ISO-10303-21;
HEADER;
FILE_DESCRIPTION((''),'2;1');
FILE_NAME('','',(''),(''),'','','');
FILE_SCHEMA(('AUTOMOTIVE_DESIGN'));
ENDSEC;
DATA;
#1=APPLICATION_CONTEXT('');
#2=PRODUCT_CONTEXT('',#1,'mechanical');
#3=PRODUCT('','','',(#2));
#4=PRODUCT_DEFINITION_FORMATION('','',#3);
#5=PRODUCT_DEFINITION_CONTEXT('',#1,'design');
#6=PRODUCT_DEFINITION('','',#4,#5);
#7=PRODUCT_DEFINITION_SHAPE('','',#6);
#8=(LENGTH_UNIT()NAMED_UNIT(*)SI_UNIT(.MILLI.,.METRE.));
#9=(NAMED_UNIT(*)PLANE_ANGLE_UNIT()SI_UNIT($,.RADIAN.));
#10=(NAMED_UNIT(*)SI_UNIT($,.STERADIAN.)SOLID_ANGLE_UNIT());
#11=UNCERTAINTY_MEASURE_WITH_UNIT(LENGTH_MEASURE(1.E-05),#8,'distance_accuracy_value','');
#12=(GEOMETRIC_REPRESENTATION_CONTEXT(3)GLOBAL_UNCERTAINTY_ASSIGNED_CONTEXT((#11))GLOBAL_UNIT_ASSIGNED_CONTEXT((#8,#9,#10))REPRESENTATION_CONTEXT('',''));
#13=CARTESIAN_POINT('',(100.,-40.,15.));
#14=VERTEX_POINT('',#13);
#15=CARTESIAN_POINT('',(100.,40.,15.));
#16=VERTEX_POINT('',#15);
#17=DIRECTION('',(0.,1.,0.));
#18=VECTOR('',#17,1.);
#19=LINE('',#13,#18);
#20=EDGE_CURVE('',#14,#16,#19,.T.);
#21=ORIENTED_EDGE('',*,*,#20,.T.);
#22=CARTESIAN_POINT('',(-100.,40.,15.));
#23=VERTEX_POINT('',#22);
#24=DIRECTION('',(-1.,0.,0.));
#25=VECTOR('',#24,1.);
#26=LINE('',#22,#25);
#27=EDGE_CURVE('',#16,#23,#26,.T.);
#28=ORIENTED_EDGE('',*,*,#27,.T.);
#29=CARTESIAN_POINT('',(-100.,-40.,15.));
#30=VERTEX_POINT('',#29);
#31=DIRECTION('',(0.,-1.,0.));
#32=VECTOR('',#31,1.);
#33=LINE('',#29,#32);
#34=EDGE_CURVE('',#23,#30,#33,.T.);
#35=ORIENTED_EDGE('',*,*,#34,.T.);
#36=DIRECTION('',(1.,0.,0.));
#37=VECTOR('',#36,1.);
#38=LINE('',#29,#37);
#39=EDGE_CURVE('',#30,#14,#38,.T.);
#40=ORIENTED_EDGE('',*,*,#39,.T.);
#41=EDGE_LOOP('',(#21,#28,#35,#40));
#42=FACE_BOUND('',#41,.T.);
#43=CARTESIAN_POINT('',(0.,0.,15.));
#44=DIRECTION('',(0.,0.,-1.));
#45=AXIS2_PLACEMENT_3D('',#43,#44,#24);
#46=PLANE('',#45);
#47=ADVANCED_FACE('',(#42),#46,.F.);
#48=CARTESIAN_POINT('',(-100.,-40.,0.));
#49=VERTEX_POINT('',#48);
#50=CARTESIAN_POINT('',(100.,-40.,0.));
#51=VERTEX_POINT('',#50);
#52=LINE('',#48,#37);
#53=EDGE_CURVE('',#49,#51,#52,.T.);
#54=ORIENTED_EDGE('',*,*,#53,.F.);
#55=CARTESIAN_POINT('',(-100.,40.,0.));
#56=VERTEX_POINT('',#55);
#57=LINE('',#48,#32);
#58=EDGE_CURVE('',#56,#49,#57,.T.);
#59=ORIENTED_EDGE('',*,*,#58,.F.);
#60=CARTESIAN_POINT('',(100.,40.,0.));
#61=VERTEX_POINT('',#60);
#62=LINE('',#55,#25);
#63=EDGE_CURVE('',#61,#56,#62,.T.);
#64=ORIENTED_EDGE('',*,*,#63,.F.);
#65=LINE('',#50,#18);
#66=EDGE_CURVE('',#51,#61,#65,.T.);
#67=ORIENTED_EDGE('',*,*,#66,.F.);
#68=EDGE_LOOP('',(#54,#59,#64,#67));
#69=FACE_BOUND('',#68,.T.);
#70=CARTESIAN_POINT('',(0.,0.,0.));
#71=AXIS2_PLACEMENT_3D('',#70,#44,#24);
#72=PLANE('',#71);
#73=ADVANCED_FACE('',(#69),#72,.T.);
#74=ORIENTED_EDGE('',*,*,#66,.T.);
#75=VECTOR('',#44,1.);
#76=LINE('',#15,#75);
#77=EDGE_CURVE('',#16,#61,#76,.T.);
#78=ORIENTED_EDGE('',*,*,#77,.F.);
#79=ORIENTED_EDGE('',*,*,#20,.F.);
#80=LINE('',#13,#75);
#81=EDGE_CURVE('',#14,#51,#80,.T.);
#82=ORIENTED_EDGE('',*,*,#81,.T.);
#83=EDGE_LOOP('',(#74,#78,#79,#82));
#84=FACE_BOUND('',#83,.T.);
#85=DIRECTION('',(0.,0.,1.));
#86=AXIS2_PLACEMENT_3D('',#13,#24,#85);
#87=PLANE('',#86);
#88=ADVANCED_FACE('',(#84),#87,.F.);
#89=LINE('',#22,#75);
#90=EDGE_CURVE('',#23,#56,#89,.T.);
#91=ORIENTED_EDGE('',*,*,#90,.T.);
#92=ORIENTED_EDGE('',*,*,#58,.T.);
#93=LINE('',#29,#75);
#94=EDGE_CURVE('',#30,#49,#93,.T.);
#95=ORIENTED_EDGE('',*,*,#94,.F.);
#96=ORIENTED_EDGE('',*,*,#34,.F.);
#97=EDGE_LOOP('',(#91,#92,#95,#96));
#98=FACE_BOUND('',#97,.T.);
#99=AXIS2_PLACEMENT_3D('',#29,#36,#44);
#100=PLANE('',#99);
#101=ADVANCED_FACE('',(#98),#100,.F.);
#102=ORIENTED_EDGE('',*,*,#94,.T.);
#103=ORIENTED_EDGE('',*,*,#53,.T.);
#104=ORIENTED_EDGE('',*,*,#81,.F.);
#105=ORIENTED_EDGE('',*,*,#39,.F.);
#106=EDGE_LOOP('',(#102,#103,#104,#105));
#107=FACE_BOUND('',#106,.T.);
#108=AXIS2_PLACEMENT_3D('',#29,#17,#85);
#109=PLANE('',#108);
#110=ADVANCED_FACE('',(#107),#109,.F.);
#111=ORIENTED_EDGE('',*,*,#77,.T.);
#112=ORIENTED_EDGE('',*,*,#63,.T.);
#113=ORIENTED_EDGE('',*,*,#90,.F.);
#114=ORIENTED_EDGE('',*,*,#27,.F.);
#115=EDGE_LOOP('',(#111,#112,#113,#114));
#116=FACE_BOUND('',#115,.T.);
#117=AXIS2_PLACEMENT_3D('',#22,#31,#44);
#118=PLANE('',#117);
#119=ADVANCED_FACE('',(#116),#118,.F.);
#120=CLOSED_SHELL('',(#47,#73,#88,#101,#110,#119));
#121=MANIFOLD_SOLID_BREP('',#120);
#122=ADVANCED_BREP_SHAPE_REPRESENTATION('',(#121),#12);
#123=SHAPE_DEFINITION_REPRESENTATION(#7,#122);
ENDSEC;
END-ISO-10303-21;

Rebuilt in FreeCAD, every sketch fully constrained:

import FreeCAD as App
import Part
import Sketcher
from FreeCAD import Vector
Q = App.Units.Quantity

doc = App.newDocument("Part")
body = doc.addObject("PartDesign::Body", "Body")

# Sketch on XY plane
sketch1 = doc.addObject("Sketcher::SketchObject", "Sketch")
body.addObject(sketch1)
sketch1.AttachmentSupport = (doc.XY_Plane, [""])
sketch1.MapMode = "FlatFace"
sketch1.addGeometry([
    Part.LineSegment(Vector(-100, 40, 0), Vector(-100, -40, 0)),
    Part.LineSegment(Vector(-100, -40, 0), Vector(100, -40, 0)),
    Part.LineSegment(Vector(100, -40, 0), Vector(100, 40, 0)),
    Part.LineSegment(Vector(100, 40, 0), Vector(-100, 40, 0)),
], False)
sketch1.addConstraint([
    Sketcher.Constraint("Coincident", 0, 2, 1, 1),
    Sketcher.Constraint("Coincident", 1, 2, 2, 1),
    Sketcher.Constraint("Coincident", 2, 2, 3, 1),
    Sketcher.Constraint("Coincident", 3, 2, 0, 1),
    Sketcher.Constraint("Vertical", 0),
    Sketcher.Constraint("Horizontal", 1),
    Sketcher.Constraint("Vertical", 2),
    Sketcher.Constraint("Horizontal", 3),
    Sketcher.Constraint("Symmetric", 0, 2, 2, 2, -1, 1),
    Sketcher.Constraint("DistanceX", 1, 1, 1, 2, Q("200 mm")),
    Sketcher.Constraint("DistanceY", 0, 2, 0, 1, Q("80 mm")),
])
pad1 = doc.addObject("PartDesign::Pad", "Pad")
body.addObject(pad1)
pad1.Profile = sketch1
pad1.Length = 15

doc.recompute()
